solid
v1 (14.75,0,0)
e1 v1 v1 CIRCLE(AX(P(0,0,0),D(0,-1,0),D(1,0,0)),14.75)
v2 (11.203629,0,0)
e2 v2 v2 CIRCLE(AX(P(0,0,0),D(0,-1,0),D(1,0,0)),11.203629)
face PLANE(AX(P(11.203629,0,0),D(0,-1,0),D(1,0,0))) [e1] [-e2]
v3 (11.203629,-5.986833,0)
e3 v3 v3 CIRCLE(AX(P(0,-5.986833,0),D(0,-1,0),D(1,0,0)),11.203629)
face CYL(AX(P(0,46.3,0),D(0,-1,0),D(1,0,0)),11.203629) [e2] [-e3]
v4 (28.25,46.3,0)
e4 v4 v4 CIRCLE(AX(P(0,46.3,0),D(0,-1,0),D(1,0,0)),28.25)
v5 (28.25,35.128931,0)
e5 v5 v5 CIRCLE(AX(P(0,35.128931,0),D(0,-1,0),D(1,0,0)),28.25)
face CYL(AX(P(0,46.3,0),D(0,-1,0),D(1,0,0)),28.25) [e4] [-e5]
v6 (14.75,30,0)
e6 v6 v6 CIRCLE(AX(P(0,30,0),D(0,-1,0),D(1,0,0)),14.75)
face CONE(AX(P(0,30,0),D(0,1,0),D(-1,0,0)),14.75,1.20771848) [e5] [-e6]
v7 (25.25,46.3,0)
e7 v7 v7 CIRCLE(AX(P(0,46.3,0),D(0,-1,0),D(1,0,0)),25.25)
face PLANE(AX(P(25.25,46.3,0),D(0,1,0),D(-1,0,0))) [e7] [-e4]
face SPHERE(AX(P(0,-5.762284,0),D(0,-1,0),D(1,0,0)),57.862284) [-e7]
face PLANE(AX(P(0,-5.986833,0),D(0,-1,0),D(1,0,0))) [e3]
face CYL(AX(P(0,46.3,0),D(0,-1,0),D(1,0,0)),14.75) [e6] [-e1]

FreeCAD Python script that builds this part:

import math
import FreeCAD as App
import Part
import Sketcher
from FreeCAD import Vector

doc = App.newDocument("Part")
body = doc.addObject("PartDesign::Body", "Body")

# Sketch on XY plane
sketch1 = body.newObject("Sketcher::SketchObject", "Sketch")
sketch1.AttachmentSupport = (doc.getObject("XY_Plane"), [""])
sketch1.MapMode = "FlatFace"
sketch1.addGeometry([
    Part.LineSegment(Vector(14.8, 0, 0), Vector(14.8, 30, 0)),  # 0
    Part.LineSegment(Vector(14.8, 30, 0), Vector(28.2, 35.1, 0)),  # 1
    Part.LineSegment(Vector(28.2, 35.1, 0), Vector(28.2, 46.3, 0)),  # 2
    Part.LineSegment(Vector(28.2, 46.3, 0), Vector(25.2, 46.3, 0)),  # 3
    Part.ArcOfCircle(Part.Circle(Vector(0, -5.8, 0), Vector(0, 0, 1), 57.9), math.radians(64), math.radians(90)),  # 4
    Part.LineSegment(Vector(0, 52.1, 0), Vector(0, -6, 0)),  # 5
    Part.LineSegment(Vector(0, -6, 0), Vector(11.2, -6, 0)),  # 6
    Part.LineSegment(Vector(11.2, -6, 0), Vector(11.2, 0, 0)),  # 7
    Part.LineSegment(Vector(11.2, 0, 0), Vector(14.8, 0, 0)),  # 8
], False)
sketch1.addConstraint([
    Sketcher.Constraint("Coincident", 0, 2, 1, 1),
    Sketcher.Constraint("Coincident", 1, 2, 2, 1),
    Sketcher.Constraint("Coincident", 2, 2, 3, 1),
    Sketcher.Constraint("Coincident", 3, 2, 4, 1),
    Sketcher.Constraint("Coincident", 4, 2, 5, 1),
    Sketcher.Constraint("Coincident", 5, 2, 6, 1),
    Sketcher.Constraint("Coincident", 6, 2, 7, 1),
    Sketcher.Constraint("Coincident", 7, 2, 8, 1),
    Sketcher.Constraint("Coincident", 8, 2, 0, 1),
    Sketcher.Constraint("Vertical", 0),
    Sketcher.Constraint("Vertical", 2),
    Sketcher.Constraint("Horizontal", 3),
    Sketcher.Constraint("Vertical", 5),
    Sketcher.Constraint("Horizontal", 6),
    Sketcher.Constraint("Vertical", 7),
    Sketcher.Constraint("Horizontal", 8),
    Sketcher.Constraint("PointOnObject", 4, 3, -2),
    Sketcher.Constraint("PointOnObject", 4, 2, -2),
    Sketcher.Constraint("PointOnObject", 7, 2, -1),
    Sketcher.Constraint("DistanceX", 3, 2, 3, 1, 3.0),
    Sketcher.Constraint("DistanceY", 0, 1, 0, 2, 30.0),
    Sketcher.Constraint("DistanceY", -1, 1, 2, 2, 46.3),
    Sketcher.Constraint("DistanceY", -1, 1, 4, 2, 52.1),
    Sketcher.Constraint("DistanceX", 0, 2, 1, 2, 13.5),
    Sketcher.Constraint("DistanceX", -1, 1, 0, 2, 14.75),
    Sketcher.Constraint("DistanceX", 6, 1, 6, 2, 11.203629),
    Sketcher.Constraint("DistanceY", 2, 1, 2, 2, 11.171069),
    Sketcher.Constraint("DistanceY", 5, 2, 5, 1, 58.086833),
])
revolution = body.newObject("PartDesign::Revolution", "Revolution")
revolution.Profile = sketch1
revolution.ReferenceAxis = (sketch1, ["V_Axis"])
revolution.Angle = 360

doc.recompute()
